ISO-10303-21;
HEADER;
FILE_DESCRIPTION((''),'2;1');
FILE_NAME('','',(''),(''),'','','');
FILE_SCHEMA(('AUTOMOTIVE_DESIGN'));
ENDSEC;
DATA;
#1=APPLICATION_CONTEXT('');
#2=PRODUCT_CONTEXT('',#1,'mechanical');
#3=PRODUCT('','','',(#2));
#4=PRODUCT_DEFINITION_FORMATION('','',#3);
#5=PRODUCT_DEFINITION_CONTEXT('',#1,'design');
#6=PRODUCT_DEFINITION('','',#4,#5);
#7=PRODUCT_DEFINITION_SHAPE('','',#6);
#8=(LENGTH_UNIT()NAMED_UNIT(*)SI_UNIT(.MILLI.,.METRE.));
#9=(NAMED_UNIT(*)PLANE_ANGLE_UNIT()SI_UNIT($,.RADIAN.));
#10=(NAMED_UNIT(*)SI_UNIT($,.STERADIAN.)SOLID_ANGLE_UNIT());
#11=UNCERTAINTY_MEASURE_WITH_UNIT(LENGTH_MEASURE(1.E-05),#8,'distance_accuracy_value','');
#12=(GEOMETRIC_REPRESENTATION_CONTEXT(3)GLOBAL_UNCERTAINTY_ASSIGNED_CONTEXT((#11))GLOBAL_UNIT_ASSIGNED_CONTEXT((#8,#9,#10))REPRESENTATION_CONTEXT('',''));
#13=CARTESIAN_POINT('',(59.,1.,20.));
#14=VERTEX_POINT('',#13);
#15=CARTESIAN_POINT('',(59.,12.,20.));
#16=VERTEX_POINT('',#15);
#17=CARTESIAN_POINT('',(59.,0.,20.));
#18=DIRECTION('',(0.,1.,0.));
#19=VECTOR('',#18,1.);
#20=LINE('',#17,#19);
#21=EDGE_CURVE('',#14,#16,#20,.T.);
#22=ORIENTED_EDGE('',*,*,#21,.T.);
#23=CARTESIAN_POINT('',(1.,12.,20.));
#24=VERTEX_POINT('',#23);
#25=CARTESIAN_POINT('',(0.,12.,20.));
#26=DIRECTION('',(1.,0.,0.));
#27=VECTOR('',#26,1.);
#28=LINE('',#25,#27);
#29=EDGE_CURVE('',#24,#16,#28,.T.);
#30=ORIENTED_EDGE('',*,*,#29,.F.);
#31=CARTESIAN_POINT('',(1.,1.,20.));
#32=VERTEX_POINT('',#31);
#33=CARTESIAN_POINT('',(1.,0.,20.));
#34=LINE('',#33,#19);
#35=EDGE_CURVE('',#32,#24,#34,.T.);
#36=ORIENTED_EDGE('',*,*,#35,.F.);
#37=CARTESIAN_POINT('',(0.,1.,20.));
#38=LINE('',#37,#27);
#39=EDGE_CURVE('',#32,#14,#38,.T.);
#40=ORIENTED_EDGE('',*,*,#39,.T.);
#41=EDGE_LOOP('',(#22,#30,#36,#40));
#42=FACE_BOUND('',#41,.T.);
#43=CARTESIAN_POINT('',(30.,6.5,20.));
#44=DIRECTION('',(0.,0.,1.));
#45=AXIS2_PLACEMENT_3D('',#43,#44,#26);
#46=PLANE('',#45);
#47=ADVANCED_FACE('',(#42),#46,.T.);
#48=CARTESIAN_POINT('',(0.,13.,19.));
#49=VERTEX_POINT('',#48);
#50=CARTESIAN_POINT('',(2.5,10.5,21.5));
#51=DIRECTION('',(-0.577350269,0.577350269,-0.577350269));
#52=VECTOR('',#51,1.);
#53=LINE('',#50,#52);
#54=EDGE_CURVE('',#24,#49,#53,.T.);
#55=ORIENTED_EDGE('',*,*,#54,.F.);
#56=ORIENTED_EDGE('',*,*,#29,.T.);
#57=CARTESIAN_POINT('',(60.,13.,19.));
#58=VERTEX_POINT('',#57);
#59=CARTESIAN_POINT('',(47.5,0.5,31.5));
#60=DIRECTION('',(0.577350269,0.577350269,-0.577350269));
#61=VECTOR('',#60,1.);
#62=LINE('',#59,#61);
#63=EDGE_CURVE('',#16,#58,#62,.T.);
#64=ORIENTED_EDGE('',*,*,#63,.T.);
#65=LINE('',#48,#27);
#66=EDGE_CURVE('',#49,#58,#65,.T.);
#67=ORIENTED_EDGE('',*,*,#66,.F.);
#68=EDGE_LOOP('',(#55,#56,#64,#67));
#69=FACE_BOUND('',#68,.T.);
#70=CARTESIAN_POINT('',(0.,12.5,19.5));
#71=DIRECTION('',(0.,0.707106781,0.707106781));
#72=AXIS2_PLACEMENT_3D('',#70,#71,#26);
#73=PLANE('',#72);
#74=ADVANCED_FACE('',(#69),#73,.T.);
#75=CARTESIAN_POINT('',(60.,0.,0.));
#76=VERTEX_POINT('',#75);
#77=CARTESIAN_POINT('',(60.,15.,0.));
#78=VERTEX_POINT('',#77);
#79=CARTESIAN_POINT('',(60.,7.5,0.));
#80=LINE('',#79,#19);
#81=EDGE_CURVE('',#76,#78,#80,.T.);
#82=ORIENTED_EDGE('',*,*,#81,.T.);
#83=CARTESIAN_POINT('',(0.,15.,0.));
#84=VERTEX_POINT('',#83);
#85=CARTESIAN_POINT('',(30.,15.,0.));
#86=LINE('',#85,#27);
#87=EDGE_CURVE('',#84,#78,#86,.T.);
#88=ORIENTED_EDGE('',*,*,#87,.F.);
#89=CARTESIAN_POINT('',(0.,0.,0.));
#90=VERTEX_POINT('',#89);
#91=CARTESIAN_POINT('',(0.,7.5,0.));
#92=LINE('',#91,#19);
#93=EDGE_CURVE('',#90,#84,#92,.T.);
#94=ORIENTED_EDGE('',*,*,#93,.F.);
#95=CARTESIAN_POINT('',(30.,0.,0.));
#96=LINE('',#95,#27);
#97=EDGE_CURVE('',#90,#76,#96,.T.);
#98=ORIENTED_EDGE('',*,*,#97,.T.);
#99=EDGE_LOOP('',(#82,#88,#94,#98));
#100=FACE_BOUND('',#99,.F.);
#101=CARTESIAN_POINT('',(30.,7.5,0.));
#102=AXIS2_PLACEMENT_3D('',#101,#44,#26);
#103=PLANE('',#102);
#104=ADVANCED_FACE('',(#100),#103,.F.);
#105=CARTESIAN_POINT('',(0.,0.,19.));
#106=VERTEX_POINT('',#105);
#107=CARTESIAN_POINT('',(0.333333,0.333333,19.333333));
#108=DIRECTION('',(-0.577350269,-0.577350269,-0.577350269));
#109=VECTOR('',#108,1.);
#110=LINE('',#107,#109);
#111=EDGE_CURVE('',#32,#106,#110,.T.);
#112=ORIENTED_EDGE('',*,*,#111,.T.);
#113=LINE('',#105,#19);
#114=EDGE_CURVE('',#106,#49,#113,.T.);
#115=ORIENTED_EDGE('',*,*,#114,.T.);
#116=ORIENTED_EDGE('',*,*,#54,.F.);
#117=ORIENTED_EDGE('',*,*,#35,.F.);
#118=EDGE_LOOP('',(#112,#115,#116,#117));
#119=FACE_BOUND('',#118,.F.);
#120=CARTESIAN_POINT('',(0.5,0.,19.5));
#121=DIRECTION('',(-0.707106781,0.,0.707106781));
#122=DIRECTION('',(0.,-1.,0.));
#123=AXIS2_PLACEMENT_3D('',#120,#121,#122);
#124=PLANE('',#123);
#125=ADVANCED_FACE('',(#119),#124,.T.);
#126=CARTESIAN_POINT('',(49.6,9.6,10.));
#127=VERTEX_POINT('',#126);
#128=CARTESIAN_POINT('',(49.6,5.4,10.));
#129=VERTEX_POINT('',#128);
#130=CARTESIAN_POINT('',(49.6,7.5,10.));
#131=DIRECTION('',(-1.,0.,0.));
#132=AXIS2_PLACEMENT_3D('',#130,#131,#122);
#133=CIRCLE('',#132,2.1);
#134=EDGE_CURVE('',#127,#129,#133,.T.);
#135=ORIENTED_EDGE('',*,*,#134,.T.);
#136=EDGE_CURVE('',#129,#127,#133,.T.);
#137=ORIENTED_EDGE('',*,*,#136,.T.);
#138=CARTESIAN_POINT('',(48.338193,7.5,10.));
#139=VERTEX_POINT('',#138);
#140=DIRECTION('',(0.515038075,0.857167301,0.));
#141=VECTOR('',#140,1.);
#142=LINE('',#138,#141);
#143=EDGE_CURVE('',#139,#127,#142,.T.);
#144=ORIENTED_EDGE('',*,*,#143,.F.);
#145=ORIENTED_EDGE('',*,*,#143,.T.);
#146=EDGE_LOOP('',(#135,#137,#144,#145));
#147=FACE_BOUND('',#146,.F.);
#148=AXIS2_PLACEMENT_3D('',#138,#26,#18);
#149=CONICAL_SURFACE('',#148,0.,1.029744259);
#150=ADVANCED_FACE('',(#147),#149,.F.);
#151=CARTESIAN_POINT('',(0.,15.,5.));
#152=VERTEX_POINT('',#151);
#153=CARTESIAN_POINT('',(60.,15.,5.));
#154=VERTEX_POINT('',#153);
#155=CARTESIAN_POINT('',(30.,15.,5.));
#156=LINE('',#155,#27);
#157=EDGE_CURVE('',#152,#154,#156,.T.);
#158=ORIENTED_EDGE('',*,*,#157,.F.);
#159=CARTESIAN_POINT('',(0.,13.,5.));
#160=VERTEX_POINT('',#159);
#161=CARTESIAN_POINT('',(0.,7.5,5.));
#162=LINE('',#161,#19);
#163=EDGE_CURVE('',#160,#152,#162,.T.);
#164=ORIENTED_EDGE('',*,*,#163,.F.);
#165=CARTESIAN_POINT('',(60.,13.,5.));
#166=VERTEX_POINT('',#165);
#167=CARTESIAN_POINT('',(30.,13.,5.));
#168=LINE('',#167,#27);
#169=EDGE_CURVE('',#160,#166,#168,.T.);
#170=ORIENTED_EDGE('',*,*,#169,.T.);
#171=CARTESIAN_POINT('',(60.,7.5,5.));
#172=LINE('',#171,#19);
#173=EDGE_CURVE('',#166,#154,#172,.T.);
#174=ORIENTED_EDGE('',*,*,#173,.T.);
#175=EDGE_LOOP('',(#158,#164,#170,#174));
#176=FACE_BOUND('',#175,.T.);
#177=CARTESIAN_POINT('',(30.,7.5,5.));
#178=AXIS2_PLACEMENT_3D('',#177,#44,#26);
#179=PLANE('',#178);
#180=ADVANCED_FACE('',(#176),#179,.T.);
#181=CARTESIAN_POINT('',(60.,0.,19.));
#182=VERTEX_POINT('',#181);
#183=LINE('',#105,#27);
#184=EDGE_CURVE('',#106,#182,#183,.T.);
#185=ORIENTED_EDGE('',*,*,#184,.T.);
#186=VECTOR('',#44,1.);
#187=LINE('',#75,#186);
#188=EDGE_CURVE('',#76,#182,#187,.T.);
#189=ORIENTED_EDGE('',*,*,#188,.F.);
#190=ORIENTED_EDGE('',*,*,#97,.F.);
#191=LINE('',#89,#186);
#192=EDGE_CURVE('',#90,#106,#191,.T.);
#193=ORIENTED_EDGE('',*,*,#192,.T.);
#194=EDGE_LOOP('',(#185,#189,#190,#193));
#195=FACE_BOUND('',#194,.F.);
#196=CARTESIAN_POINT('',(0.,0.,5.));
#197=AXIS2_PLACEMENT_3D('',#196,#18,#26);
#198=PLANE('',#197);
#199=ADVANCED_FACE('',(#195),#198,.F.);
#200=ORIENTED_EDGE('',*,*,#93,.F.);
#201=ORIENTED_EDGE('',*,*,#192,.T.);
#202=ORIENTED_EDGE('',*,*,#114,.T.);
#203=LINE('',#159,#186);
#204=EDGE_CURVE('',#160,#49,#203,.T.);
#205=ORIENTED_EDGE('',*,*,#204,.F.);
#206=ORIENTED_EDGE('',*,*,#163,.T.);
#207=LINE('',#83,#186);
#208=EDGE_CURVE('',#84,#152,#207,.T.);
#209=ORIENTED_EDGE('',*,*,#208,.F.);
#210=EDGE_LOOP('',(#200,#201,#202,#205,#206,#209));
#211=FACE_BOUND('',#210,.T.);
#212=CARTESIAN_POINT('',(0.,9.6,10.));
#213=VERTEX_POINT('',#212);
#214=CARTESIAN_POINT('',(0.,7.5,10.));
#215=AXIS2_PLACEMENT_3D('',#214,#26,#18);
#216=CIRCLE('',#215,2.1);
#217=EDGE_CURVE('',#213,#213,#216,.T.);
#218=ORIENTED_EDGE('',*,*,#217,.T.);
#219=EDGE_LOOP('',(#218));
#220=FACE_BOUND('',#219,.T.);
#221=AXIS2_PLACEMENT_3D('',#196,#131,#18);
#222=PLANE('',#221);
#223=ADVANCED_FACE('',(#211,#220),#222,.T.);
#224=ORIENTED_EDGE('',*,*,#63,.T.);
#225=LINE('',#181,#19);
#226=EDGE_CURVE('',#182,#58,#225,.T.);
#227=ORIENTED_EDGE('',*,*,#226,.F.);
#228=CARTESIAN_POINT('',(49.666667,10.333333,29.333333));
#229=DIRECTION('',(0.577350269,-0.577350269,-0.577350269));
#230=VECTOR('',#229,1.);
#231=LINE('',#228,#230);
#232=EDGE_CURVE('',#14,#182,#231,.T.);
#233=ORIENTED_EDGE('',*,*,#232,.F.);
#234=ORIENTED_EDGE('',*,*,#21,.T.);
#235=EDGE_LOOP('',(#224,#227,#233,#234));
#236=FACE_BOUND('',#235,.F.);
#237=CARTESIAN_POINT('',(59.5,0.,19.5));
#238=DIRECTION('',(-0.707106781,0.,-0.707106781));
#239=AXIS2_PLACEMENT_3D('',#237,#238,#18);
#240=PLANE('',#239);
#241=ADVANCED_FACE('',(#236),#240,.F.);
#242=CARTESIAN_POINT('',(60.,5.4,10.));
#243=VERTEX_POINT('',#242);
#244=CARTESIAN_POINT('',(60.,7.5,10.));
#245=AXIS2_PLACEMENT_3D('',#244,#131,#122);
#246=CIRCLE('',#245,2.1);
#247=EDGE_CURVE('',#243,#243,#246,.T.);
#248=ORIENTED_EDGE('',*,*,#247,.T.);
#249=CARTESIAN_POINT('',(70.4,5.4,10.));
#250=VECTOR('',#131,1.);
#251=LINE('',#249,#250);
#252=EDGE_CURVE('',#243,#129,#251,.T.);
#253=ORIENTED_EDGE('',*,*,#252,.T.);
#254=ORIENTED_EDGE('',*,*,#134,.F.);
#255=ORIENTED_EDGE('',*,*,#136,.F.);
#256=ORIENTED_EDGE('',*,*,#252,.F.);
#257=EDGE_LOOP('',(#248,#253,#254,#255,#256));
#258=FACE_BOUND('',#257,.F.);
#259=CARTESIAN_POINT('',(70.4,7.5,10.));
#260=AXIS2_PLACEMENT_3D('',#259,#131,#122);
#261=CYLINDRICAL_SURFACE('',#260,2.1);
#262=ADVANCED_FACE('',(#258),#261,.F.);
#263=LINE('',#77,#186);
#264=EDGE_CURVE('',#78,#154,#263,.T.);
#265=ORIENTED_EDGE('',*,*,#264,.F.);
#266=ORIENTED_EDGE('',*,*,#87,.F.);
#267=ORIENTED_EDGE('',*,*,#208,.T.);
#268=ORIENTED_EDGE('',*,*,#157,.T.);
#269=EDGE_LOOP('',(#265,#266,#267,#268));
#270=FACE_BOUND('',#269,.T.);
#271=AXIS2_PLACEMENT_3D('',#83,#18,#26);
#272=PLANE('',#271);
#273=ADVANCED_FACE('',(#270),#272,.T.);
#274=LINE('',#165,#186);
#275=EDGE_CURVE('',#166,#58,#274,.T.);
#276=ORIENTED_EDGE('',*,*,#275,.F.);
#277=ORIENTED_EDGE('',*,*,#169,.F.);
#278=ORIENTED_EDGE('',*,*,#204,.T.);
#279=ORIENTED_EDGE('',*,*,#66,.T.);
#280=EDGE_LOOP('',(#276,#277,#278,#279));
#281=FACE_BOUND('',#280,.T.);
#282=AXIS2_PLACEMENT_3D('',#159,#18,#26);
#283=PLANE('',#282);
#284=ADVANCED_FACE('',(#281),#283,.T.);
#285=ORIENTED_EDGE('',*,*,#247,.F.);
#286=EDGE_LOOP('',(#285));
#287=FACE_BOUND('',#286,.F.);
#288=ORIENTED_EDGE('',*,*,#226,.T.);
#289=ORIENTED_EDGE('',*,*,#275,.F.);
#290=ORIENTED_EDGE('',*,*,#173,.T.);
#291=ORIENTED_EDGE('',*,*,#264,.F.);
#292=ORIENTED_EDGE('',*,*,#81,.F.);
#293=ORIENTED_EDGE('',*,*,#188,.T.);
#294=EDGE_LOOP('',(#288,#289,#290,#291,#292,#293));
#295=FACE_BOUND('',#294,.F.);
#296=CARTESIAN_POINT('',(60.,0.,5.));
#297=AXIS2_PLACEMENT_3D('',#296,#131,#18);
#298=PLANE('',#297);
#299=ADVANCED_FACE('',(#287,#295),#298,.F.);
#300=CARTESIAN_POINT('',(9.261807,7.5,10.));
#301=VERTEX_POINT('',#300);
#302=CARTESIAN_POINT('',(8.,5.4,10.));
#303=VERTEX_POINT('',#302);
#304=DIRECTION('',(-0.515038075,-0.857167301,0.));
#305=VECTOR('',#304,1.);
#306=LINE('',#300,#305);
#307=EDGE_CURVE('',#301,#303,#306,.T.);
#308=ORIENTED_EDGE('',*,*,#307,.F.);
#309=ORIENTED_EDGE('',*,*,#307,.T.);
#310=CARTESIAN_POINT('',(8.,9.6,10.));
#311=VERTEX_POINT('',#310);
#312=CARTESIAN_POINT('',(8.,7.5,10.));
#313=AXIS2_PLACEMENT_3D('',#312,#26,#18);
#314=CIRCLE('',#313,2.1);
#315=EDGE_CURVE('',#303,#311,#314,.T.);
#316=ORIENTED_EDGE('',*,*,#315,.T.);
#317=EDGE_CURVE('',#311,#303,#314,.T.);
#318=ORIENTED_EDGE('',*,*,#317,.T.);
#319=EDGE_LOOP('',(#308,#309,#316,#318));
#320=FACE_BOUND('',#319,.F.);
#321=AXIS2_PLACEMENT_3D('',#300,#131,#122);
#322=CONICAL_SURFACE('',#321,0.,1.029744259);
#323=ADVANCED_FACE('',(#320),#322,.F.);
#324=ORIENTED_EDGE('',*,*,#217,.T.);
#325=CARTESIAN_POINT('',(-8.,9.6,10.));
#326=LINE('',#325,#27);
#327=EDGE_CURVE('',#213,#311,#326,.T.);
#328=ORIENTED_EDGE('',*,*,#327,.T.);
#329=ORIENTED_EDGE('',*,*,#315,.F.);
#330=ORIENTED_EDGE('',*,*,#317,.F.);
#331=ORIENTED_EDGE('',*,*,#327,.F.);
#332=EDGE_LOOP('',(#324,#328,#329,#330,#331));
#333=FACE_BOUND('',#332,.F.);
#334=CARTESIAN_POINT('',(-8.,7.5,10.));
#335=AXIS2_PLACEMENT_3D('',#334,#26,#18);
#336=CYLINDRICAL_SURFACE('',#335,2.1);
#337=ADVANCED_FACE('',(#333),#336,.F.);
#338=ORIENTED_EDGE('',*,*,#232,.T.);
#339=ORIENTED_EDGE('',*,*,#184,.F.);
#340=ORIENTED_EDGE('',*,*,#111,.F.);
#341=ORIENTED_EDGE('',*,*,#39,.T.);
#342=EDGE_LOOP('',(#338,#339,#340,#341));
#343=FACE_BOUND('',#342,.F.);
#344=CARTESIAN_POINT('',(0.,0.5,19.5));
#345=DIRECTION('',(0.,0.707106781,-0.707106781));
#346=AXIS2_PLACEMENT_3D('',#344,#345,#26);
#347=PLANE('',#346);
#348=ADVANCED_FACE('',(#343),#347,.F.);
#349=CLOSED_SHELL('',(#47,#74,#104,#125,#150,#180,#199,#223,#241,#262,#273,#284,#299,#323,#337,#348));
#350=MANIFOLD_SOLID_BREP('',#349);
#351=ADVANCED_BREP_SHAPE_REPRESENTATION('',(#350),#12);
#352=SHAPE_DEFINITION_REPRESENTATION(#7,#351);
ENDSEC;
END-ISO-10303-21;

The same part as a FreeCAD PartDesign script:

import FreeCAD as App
import Part
import Sketcher

V = App.Vector


def edges_at(feature, points):
    """Names of the edges that pass closest to the given points."""
    edges = feature.Shape.Edges
    near = lambda p: min(range(len(edges)), key=lambda i: edges[i].distToShape(Part.Vertex(*p))[0])
    return sorted({f"Edge{near(p) + 1}" for p in points})


def add_polygon(sketch, points):
    """Adds a closed chain of lines whose ends are joined by coincident constraints."""
    first, n = sketch.GeometryCount, len(points)
    for a, b in zip(points, points[1:] + points[:1]):
        sketch.addGeometry(Part.LineSegment(App.Vector(*a, 0), App.Vector(*b, 0)), False)
    for i in range(n):
        sketch.addConstraint(Sketcher.Constraint("Coincident", first + i, 2, first + (i + 1) % n, 1))

doc = App.newDocument("Part")
body = doc.addObject("PartDesign::Body", "Body")

# Sketch on XY plane
sketch1 = body.newObject("Sketcher::SketchObject", "Sketch")
sketch1.AttachmentSupport = (doc.getObject("XY_Plane"), [""])
sketch1.MapMode = "FlatFace"
add_polygon(sketch1, [(0, 15), (0, 0), (60, 0), (60, 15)])  # lines 0-3
sketch1.addConstraint(Sketcher.Constraint("Vertical", 0))
sketch1.addConstraint(Sketcher.Constraint("Horizontal", 1))
sketch1.addConstraint(Sketcher.Constraint("Vertical", 2))
sketch1.addConstraint(Sketcher.Constraint("Horizontal", 3))
sketch1.addConstraint(Sketcher.Constraint("Coincident", 0, 2, -1, 1))
sketch1.addConstraint(Sketcher.Constraint("DistanceX", 1, 1, 1, 2, 60.0))
sketch1.addConstraint(Sketcher.Constraint("DistanceY", 0, 2, 0, 1, 15.0))
pad1 = body.newObject("PartDesign::Pad", "Pad")
pad1.Profile = sketch1
pad1.Length = 5

# Sketch on XY plane
sketch2 = body.newObject("Sketcher::SketchObject", "Sketch001")
sketch2.AttachmentSupport = (doc.getObject("XY_Plane"), [""])
sketch2.MapMode = "FlatFace"
sketch2.AttachmentOffset = App.Placement(V(0, 0, 5), App.Rotation())
add_polygon(sketch2, [(0, 13), (0, 0), (60, 0), (60, 13)])  # lines 0-3
sketch2.addConstraint(Sketcher.Constraint("Vertical", 0))
sketch2.addConstraint(Sketcher.Constraint("Horizontal", 1))
sketch2.addConstraint(Sketcher.Constraint("Vertical", 2))
sketch2.addConstraint(Sketcher.Constraint("Horizontal", 3))
sketch2.addConstraint(Sketcher.Constraint("Coincident", 0, 2, -1, 1))
sketch2.addConstraint(Sketcher.Constraint("DistanceX", 1, 1, 1, 2, 60.0))
sketch2.addConstraint(Sketcher.Constraint("DistanceY", 0, 2, 0, 1, 13.0))
pad2 = body.newObject("PartDesign::Pad", "Pad001")
pad2.Profile = sketch2
pad2.Length = 15

# Sketch on YZ plane
sketch3 = body.newObject("Sketcher::SketchObject", "Sketch002")
sketch3.AttachmentSupport = (doc.getObject("YZ_Plane"), [""])
sketch3.MapMode = "FlatFace"
sketch3.AttachmentOffset = App.Placement(V(0, 0, 60), App.Rotation())
sketch3.addGeometry(Part.Circle(V(7.5, 10, 0), V(0, 0, 1), 2.1), False)
sketch3.addConstraint(Sketcher.Constraint("Diameter", 0, 4.2))
sketch3.addConstraint(Sketcher.Constraint("DistanceY", -1, 1, 0, 3, 10.0))
sketch3.addConstraint(Sketcher.Constraint("DistanceX", -1, 1, 0, 3, 7.5))
doc.recompute()
hole = body.newObject("PartDesign::Hole", "Hole")
hole.Profile = sketch3
hole.ThreadType = "None"
hole.Diameter = 4.2
hole.DepthType = "Dimension"
hole.Depth = 10.4
hole.DrillPoint = "Angled"
hole.DrillPointAngle = 118

# Sketch on YZ plane
sketch4 = body.newObject("Sketcher::SketchObject", "Sketch003")
sketch4.AttachmentSupport = (doc.getObject("YZ_Plane"), [""])
sketch4.MapMode = "FlatFace"
sketch4.addGeometry(Part.Circle(V(7.5, 10, 0), V(0, 0, 1), 2.1), False)
sketch4.addConstraint(Sketcher.Constraint("Diameter", 0, 4.2))
sketch4.addConstraint(Sketcher.Constraint("DistanceY", -1, 1, 0, 3, 10.0))
sketch4.addConstraint(Sketcher.Constraint("DistanceX", -1, 1, 0, 3, 7.5))
doc.recompute()
hole2 = body.newObject("PartDesign::Hole", "Hole001")
hole2.Profile = sketch4
hole2.ThreadType = "None"
hole2.Diameter = 4.2
hole2.DepthType = "Dimension"
hole2.Depth = 8
hole2.DrillPoint = "Angled"
hole2.DrillPointAngle = 118
hole2.Reversed = True
doc.recompute()

chamfer = body.newObject("PartDesign::Chamfer", "Chamfer")
chamfer.Base = (hole2, edges_at(hole2, [
    (30, 13, 20),
    (30, 0, 20),
    (0, 6.5, 20),
    (60, 6.5, 20),
]))
chamfer.Size = 1

doc.recompute()
